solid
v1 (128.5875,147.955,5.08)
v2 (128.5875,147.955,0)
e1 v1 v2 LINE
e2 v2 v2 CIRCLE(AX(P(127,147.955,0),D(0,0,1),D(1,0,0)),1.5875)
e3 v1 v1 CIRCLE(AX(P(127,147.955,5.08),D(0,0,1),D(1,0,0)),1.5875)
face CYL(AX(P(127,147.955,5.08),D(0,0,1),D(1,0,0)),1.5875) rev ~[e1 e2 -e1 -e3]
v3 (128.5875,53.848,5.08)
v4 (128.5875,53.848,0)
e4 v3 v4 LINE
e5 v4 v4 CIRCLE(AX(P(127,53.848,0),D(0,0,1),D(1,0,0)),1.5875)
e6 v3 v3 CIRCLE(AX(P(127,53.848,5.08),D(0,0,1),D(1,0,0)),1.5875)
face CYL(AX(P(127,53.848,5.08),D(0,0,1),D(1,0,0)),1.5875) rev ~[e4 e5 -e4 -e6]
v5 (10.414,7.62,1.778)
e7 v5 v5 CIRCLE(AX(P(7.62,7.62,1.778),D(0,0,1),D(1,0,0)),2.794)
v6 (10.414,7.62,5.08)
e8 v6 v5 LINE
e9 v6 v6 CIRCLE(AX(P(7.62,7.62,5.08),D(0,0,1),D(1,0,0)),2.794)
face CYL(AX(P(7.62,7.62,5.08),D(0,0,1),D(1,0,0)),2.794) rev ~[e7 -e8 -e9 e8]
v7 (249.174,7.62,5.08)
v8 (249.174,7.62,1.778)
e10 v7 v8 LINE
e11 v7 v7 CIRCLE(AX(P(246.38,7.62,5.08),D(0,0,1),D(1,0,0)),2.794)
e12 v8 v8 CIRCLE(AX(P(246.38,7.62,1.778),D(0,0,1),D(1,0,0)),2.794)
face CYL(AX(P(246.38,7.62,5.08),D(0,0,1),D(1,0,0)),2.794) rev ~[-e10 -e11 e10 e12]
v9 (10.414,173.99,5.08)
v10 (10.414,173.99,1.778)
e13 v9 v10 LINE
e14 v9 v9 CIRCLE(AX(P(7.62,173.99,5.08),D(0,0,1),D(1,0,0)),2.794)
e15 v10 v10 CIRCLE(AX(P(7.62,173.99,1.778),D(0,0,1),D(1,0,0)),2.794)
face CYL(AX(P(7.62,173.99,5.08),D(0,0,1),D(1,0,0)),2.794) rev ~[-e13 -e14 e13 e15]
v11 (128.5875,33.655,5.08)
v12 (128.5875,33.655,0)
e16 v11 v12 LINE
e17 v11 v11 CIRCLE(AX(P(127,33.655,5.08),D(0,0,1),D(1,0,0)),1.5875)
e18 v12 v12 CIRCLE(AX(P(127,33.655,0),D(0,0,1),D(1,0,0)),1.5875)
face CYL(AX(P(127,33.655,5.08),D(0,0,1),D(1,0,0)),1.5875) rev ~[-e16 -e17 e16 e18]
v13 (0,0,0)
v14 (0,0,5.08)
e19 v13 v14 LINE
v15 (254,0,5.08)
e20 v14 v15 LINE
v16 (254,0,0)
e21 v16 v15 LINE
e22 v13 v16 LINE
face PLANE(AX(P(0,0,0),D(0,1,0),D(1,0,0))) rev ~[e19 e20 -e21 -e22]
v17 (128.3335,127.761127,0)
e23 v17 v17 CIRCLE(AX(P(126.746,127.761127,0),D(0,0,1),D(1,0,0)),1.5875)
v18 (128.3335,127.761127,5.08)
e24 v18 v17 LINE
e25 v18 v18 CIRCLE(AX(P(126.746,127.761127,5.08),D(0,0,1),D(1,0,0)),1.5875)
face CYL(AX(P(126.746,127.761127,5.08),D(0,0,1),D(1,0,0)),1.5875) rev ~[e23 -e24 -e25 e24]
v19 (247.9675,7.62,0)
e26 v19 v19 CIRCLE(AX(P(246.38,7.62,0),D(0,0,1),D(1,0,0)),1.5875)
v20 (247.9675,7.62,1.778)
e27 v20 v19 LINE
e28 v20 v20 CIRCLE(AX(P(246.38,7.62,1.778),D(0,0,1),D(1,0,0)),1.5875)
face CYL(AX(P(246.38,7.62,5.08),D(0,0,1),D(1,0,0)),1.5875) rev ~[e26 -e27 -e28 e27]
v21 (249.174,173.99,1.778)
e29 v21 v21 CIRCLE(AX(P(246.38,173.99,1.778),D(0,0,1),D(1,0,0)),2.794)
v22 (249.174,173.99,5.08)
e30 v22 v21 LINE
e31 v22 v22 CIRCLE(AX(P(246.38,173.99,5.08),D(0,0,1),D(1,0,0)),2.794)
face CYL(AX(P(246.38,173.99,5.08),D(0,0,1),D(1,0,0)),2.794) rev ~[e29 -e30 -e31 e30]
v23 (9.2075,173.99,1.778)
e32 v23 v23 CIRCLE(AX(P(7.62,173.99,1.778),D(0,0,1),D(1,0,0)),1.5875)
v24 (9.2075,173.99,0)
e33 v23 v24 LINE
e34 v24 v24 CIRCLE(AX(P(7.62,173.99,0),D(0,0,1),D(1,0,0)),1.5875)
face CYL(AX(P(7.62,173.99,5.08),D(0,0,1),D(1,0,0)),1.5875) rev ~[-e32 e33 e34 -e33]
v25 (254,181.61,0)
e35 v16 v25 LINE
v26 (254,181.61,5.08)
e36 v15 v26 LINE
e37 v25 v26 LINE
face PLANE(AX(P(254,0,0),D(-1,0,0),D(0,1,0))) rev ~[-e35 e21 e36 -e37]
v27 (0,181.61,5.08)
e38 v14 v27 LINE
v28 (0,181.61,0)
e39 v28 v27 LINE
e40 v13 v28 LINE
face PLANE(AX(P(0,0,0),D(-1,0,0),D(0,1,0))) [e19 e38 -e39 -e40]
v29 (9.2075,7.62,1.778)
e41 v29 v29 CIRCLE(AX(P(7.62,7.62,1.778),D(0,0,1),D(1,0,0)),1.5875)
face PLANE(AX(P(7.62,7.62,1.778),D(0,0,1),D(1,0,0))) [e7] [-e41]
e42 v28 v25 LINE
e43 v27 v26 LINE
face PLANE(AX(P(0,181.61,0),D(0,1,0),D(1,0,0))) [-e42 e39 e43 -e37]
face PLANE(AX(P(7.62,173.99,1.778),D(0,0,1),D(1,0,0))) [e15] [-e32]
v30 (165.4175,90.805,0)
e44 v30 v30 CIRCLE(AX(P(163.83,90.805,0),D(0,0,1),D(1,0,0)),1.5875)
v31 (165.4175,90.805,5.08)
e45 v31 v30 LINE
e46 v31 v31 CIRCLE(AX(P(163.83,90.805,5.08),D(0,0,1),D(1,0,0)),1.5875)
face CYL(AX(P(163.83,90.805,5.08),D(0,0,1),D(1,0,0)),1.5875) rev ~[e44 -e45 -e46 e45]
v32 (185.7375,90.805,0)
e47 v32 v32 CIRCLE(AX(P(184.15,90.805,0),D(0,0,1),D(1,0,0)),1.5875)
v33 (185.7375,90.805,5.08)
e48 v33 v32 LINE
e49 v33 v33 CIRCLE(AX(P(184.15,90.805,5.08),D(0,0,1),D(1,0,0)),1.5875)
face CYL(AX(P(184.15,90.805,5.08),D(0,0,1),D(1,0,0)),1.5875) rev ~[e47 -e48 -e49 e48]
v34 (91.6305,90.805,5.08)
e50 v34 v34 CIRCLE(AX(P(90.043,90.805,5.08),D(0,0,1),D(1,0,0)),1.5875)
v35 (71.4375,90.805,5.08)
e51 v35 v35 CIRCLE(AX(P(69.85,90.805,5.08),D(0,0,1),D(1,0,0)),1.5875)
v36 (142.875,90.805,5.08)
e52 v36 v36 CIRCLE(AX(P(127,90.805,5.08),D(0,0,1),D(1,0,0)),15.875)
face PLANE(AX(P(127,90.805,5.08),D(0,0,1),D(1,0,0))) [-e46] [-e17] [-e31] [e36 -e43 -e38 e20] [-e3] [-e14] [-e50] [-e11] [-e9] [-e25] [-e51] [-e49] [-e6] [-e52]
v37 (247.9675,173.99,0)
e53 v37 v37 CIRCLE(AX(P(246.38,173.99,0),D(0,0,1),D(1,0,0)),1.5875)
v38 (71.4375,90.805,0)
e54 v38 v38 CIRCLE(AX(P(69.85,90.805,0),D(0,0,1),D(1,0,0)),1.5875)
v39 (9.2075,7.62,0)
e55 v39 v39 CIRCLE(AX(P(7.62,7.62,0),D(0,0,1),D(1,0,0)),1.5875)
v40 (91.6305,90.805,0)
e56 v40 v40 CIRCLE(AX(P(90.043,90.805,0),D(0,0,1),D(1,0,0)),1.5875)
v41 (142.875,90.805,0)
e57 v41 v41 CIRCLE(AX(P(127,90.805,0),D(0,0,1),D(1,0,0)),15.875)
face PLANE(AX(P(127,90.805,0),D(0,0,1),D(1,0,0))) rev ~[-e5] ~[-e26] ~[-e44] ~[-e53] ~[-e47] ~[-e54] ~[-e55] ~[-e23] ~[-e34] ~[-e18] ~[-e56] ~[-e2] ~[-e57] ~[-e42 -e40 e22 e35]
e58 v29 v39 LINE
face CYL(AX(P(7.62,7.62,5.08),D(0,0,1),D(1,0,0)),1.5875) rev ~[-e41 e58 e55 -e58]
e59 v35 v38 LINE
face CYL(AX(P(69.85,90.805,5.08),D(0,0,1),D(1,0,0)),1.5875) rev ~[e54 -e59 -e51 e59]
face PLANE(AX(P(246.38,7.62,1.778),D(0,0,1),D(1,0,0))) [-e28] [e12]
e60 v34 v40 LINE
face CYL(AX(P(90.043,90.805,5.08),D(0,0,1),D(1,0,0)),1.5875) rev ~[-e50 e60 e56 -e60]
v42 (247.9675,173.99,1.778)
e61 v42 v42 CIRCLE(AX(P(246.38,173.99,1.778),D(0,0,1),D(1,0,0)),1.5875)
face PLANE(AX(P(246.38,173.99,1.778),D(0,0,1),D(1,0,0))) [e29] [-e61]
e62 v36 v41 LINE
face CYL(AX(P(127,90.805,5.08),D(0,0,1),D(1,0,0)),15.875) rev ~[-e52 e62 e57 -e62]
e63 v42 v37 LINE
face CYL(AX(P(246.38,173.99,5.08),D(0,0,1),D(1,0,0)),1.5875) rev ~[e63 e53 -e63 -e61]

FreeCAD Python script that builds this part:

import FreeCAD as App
import Part
import Sketcher

V = App.Vector
Q = App.Units.Quantity


def add_polygon(sketch, points):
    """Adds a closed chain of lines whose ends are joined by coincident constraints."""
    first, n = sketch.GeometryCount, len(points)
    for a, b in zip(points, points[1:] + points[:1]):
        sketch.addGeometry(Part.LineSegment(App.Vector(*a, 0), App.Vector(*b, 0)), False)
    for i in range(n):
        sketch.addConstraint(Sketcher.Constraint("Coincident", first + i, 2, first + (i + 1) % n, 1))

doc = App.newDocument("Part")
body = doc.addObject("PartDesign::Body", "Body")

sketch1 = doc.addObject("Sketcher::SketchObject", "Sketch")
body.addObject(sketch1)
sketch1.AttachmentSupport = (doc.XY_Plane, [""])
sketch1.MapMode = "FlatFace"
add_polygon(sketch1, [(0, 182), (0, 0), (254, 0), (254, 182)])
sketch1.addConstraint(Sketcher.Constraint("Vertical", 0))
sketch1.addConstraint(Sketcher.Constraint("Horizontal", 1))
sketch1.addConstraint(Sketcher.Constraint("Vertical", 2))
sketch1.addConstraint(Sketcher.Constraint("Horizontal", 3))
sketch1.addConstraint(Sketcher.Constraint("Coincident", 0, 2, -1, 1))
sketch1.addConstraint(Sketcher.Constraint("DistanceX", 1, 1, 1, 2, Q("10 in")))
sketch1.addConstraint(Sketcher.Constraint("DistanceY", 0, 2, 0, 1, Q("7.15 in")))
pad1 = doc.addObject("PartDesign::Pad", "Pad")
body.addObject(pad1)
pad1.Profile = sketch1
pad1.Length = Q("0.2 in")

sketch2 = doc.addObject("Sketcher::SketchObject", "Sketch001")
body.addObject(sketch2)
sketch2.AttachmentSupport = (doc.XY_Plane, [""])
sketch2.MapMode = "FlatFace"
sketch2.AttachmentOffset = App.Placement(V(0, 0, 0.2 * 25.4), App.Rotation())
sketch2.addGeometry(Part.Circle(V(127, 91, 0), V(0, 0, 1), 16), False)
sketch2.addConstraint(Sketcher.Constraint("Diameter", 0, Q("1.25 in")))
sketch2.addConstraint(Sketcher.Constraint("DistanceX", -1, 1, 0, 3, Q("5 in")))
sketch2.addConstraint(Sketcher.Constraint("DistanceY", -1, 1, 0, 3, Q("3.575 in")))
pocket1 = doc.addObject("PartDesign::Pocket", "Pocket")
body.addObject(pocket1)
pocket1.Profile = sketch2
pocket1.Length = Q("0.2 in")

sketch3 = doc.addObject("Sketcher::SketchObject", "Sketch002")
body.addObject(sketch3)
sketch3.AttachmentSupport = (doc.XY_Plane, [""])
sketch3.MapMode = "FlatFace"
sketch3.AttachmentOffset = App.Placement(V(0, 0, 0.2 * 25.4), App.Rotation())
sketch3.addGeometry(Part.Circle(V(7.6, 174, 0), V(0, 0, 1), 1.6), False)
sketch3.addGeometry(Part.Circle(V(246.4, 174, 0), V(0, 0, 1), 1.6), False)
sketch3.addGeometry(Part.Circle(V(7.6, 7.6, 0), V(0, 0, 1), 1.6), False)
sketch3.addGeometry(Part.Circle(V(246.4, 7.6, 0), V(0, 0, 1), 1.6), False)
sketch3.addConstraint(Sketcher.Constraint("Equal", 0, 1))
sketch3.addConstraint(Sketcher.Constraint("Equal", 1, 2))
sketch3.addConstraint(Sketcher.Constraint("Equal", 2, 3))
sketch3.addConstraint(Sketcher.Constraint("Horizontal", 0, 3, 1, 3))
sketch3.addConstraint(Sketcher.Constraint("Horizontal", 2, 3, 3, 3))
sketch3.addConstraint(Sketcher.Constraint("Vertical", 0, 3, 2, 3))
sketch3.addConstraint(Sketcher.Constraint("Vertical", 1, 3, 3, 3))
sketch3.addConstraint(Sketcher.Constraint("Diameter", 0, Q("0.125 in")))
sketch3.addConstraint(Sketcher.Constraint("DistanceX", -1, 1, 0, 3, Q("0.3 in")))
sketch3.addConstraint(Sketcher.Constraint("DistanceX", -1, 1, 1, 3, Q("9.7 in")))
sketch3.addConstraint(Sketcher.Constraint("DistanceY", -1, 1, 2, 3, Q("0.3 in")))
sketch3.addConstraint(Sketcher.Constraint("DistanceY", -1, 1, 0, 3, Q("6.85 in")))
pocket2 = doc.addObject("PartDesign::Pocket", "Pocket001")
body.addObject(pocket2)
pocket2.Profile = sketch3
pocket2.Length = Q("0.3 in")

sketch4 = doc.addObject("Sketcher::SketchObject", "Sketch003")
body.addObject(sketch4)
sketch4.AttachmentSupport = (doc.XY_Plane, [""])
sketch4.MapMode = "FlatFace"
sketch4.AttachmentOffset = App.Placement(V(0, 0, 0.2 * 25.4), App.Rotation())
sketch4.addGeometry(Part.Circle(V(246.4, 174, 0), V(0, 0, 1), 2.8), False)
sketch4.addGeometry(Part.Circle(V(246.4, 7.6, 0), V(0, 0, 1), 2.8), False)
sketch4.addGeometry(Part.Circle(V(7.6, 174, 0), V(0, 0, 1), 2.8), False)
sketch4.addGeometry(Part.Circle(V(7.6, 7.6, 0), V(0, 0, 1), 2.8), False)
sketch4.addConstraint(Sketcher.Constraint("Equal", 0, 1))
sketch4.addConstraint(Sketcher.Constraint("Equal", 1, 2))
sketch4.addConstraint(Sketcher.Constraint("Equal", 2, 3))
sketch4.addConstraint(Sketcher.Constraint("Horizontal", 0, 3, 2, 3))
sketch4.addConstraint(Sketcher.Constraint("Horizontal", 1, 3, 3, 3))
sketch4.addConstraint(Sketcher.Constraint("Vertical", 0, 3, 1, 3))
sketch4.addConstraint(Sketcher.Constraint("Vertical", 2, 3, 3, 3))
sketch4.addConstraint(Sketcher.Constraint("Diameter", 0, Q("0.22 in")))
sketch4.addConstraint(Sketcher.Constraint("DistanceX", -1, 1, 0, 3, Q("9.7 in")))
sketch4.addConstraint(Sketcher.Constraint("DistanceY", -1, 1, 1, 3, Q("0.3 in")))
sketch4.addConstraint(Sketcher.Constraint("DistanceX", -1, 1, 2, 3, Q("0.3 in")))
sketch4.addConstraint(Sketcher.Constraint("DistanceY", -1, 1, 0, 3, Q("6.85 in")))
pocket3 = doc.addObject("PartDesign::Pocket", "Pocket002")
body.addObject(pocket3)
pocket3.Profile = sketch4
pocket3.Length = Q("0.13 in")

sketch5 = doc.addObject("Sketcher::SketchObject", "Sketch004")
body.addObject(sketch5)
sketch5.AttachmentSupport = (doc.XY_Plane, [""])
sketch5.MapMode = "FlatFace"
sketch5.AttachmentOffset = App.Placement(V(0, 0, 0.2 * 25.4), App.Rotation())
sketch5.addGeometry(Part.Circle(V(127, 148, 0), V(0, 0, 1), 1.6), False)
sketch5.addGeometry(Part.Circle(V(184.2, 90.8, 0), V(0, 0, 1), 1.6), False)
sketch5.addGeometry(Part.Circle(V(127, 33.7, 0), V(0, 0, 1), 1.6), False)
sketch5.addGeometry(Part.Circle(V(69.8, 90.8, 0), V(0, 0, 1), 1.6), False)
sketch5.addGeometry(Part.Circle(V(163.8, 90.8, 0), V(0, 0, 1), 1.6), False)
sketch5.addGeometry(Part.Circle(V(127, 53.8, 0), V(0, 0, 1), 1.6), False)
sketch5.addGeometry(Part.Circle(V(90, 90.8, 0), V(0, 0, 1), 1.6), False)
sketch5.addGeometry(Part.Circle(V(126.7, 127.8, 0), V(0, 0, 1), 1.6), False)
sketch5.addConstraint(Sketcher.Constraint("Equal", 0, 1))
sketch5.addConstraint(Sketcher.Constraint("Equal", 1, 2))
sketch5.addConstraint(Sketcher.Constraint("Equal", 2, 3))
sketch5.addConstraint(Sketcher.Constraint("Equal", 3, 4))
sketch5.addConstraint(Sketcher.Constraint("Equal", 4, 5))
sketch5.addConstraint(Sketcher.Constraint("Equal", 5, 6))
sketch5.addConstraint(Sketcher.Constraint("Equal", 6, 7))
sketch5.addConstraint(Sketcher.Constraint("Horizontal", 1, 3, 3, 3))
sketch5.addConstraint(Sketcher.Constraint("Horizontal", 3, 3, 4, 3))
sketch5.addConstraint(Sketcher.Constraint("Horizontal", 4, 3, 6, 3))
sketch5.addConstraint(Sketcher.Constraint("Vertical", 0, 3, 2, 3))
sketch5.addConstraint(Sketcher.Constraint("Vertical", 2, 3, 5, 3))
sketch5.addConstraint(Sketcher.Constraint("Diameter", 0, Q("0.125 in")))
sketch5.addConstraint(Sketcher.Constraint("DistanceX", -1, 1, 0, 3, Q("5 in")))
sketch5.addConstraint(Sketcher.Constraint("DistanceY", 2, 3, 0, 3, Q("4.5 in")))
sketch5.addConstraint(Sketcher.Constraint("DistanceX", 3, 3, 1, 3, Q("4.5 in")))
sketch5.addConstraint(Sketcher.Constraint("DistanceX", 4, 3, 1, 3, Q("0.8 in")))
sketch5.addConstraint(Sketcher.Constraint("DistanceX", -1, 1, 1, 3, Q("7.25 in")))
sketch5.addConstraint(Sketcher.Constraint("DistanceY", -1, 1, 5, 3, Q("2.12 in")))
sketch5.addConstraint(Sketcher.Constraint("DistanceX", -1, 1, 7, 3, Q("4.99 in")))
sketch5.addConstraint(Sketcher.Constraint("DistanceY", 1, 3, 0, 3, Q("2.25 in")))
sketch5.addConstraint(Sketcher.Constraint("DistanceY", -1, 1, 0, 3, Q("5.825 in")))
sketch5.addConstraint(Sketcher.Constraint("DistanceX", -1, 1, 6, 3, Q("3.545 in")))
sketch5.addConstraint(Sketcher.Constraint("DistanceY", -1, 1, 7, 3, Q("127.761127 mm")))
pocket4 = doc.addObject("PartDesign::Pocket", "Pocket003")
body.addObject(pocket4)
pocket4.Profile = sketch5
pocket4.Length = Q("0.2 in")

doc.recompute()
